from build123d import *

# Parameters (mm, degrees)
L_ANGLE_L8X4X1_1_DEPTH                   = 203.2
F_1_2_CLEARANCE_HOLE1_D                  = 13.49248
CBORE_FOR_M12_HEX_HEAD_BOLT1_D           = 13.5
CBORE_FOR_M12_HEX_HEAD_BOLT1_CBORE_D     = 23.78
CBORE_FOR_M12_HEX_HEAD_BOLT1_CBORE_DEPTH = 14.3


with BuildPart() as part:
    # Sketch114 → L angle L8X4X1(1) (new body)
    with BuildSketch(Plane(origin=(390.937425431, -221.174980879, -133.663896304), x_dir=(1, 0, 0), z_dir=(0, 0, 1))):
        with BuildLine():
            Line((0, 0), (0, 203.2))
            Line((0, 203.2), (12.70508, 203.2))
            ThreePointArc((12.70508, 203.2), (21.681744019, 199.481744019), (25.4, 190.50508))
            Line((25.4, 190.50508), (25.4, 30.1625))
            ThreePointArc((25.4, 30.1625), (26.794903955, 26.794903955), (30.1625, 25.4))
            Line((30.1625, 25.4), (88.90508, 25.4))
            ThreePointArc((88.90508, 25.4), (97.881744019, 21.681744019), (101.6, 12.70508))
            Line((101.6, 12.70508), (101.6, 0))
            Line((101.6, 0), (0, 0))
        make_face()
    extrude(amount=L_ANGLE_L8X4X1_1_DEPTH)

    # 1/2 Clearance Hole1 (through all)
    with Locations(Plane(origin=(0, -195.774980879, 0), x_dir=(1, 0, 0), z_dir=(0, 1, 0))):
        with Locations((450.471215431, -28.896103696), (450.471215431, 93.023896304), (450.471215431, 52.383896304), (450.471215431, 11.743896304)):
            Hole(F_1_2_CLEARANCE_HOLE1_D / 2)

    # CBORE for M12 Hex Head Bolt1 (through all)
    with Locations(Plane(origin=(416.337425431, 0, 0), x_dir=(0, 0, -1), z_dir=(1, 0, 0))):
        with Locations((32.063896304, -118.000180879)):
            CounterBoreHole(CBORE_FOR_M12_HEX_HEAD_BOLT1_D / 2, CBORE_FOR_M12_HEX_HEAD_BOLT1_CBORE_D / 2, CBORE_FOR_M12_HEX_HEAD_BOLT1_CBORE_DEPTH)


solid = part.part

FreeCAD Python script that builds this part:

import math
import FreeCAD as App
import Part
import Sketcher
from FreeCAD import Vector
Q = App.Units.Quantity

doc = App.newDocument("Part")
body = doc.addObject("PartDesign::Body", "Body")

sketch1 = body.newObject("Sketcher::SketchObject", "Sketch")
sketch1.AttachmentSupport = (doc.getObject("XY_Plane"), [""])
sketch1.MapMode = "FlatFace"
sketch1.AttachmentOffset = App.Placement(Vector(0, 0, -133.663896), App.Rotation())
sketch1.addGeometry(Part.LineSegment(Vector(390.937425, -17.974981, 0), Vector(390.937425, -221.174981, 0)), False)
sketch1.addGeometry(Part.LineSegment(Vector(390.937425, -221.174981, 0), Vector(492.537425, -221.174981, 0)), False)
sketch1.addGeometry(Part.LineSegment(Vector(492.537425, -221.174981, 0), Vector(492.537425, -208.469901, 0)), False)
sketch1.addGeometry(Part.ArcOfCircle(Part.Circle(Vector(479.842505, -208.469901, 0), Vector(0, 0, 1), 12.69492), math.radians(0), math.radians(90)), False)
sketch1.addGeometry(Part.LineSegment(Vector(479.842505, -195.774981, 0), Vector(421.099925, -195.774981, 0)), False)
sketch1.addGeometry(Part.ArcOfCircle(Part.Circle(Vector(421.099925, -191.012481, 0), Vector(0, 0, 1), 4.7625), math.radians(-180), math.radians(-90)), False)
sketch1.addGeometry(Part.LineSegment(Vector(416.337425, -191.012481, 0), Vector(416.337425, -30.669901, 0)), False)
sketch1.addGeometry(Part.ArcOfCircle(Part.Circle(Vector(403.642505, -30.669901, 0), Vector(0, 0, 1), 12.69492), math.radians(0), math.radians(90)), False)
sketch1.addGeometry(Part.LineSegment(Vector(403.642505, -17.974981, 0), Vector(390.937425, -17.974981, 0)), False)
sketch1.addConstraint(Sketcher.Constraint("Coincident", 0, 2, 1, 1))
sketch1.addConstraint(Sketcher.Constraint("Coincident", 1, 2, 2, 1))
sketch1.addConstraint(Sketcher.Constraint("Tangent", 2, 2, 3, 1))
sketch1.addConstraint(Sketcher.Constraint("Tangent", 3, 2, 4, 1))
sketch1.addConstraint(Sketcher.Constraint("Tangent", 4, 2, 5, 2))
sketch1.addConstraint(Sketcher.Constraint("Tangent", 5, 1, 6, 1))
sketch1.addConstraint(Sketcher.Constraint("Tangent", 6, 2, 7, 1))
sketch1.addConstraint(Sketcher.Constraint("Tangent", 7, 2, 8, 1))
sketch1.addConstraint(Sketcher.Constraint("Coincident", 8, 2, 0, 1))
sketch1.addConstraint(Sketcher.Constraint("Vertical", 0))
sketch1.addConstraint(Sketcher.Constraint("Horizontal", 1))
sketch1.addConstraint(Sketcher.Constraint("Vertical", 2))
sketch1.addConstraint(Sketcher.Constraint("Horizontal", 4))
sketch1.addConstraint(Sketcher.Constraint("Vertical", 6))
sketch1.addConstraint(Sketcher.Constraint("Horizontal", 8))
sketch1.addConstraint(Sketcher.Constraint("Equal", 3, 7))
sketch1.addConstraint(Sketcher.Constraint("Equal", 8, 2))
sketch1.addConstraint(Sketcher.Constraint("DistanceX", 1, 1, 1, 2, Q("4 in")))
sketch1.addConstraint(Sketcher.Constraint("DistanceY", 0, 2, 0, 1, Q("8 in")))
sketch1.addConstraint(Sketcher.Constraint("Radius", 5, Q("0.1875 in")))
sketch1.addConstraint(Sketcher.Constraint("DistanceX", 7, 3, 3, 3, Q("3 in")))
sketch1.addConstraint(Sketcher.Constraint("Radius", 3, Q("0.4998 in")))
sketch1.addConstraint(Sketcher.Constraint("DistanceY", 3, 3, -1, 1, Q("208.469901 mm")))
sketch1.addConstraint(Sketcher.Constraint("DistanceX", -1, 1, 3, 3, Q("479.842505 mm")))
pad1 = body.newObject("PartDesign::Pad", "Pad")
pad1.Profile = sketch1
pad1.Length = Q("8 in")

sketch2 = body.newObject("Sketcher::SketchObject", "Sketch001")
sketch2.AttachmentSupport = (doc.getObject("XZ_Plane"), [""])
sketch2.MapMode = "FlatFace"
sketch2.AttachmentOffset = App.Placement(Vector(0, 0, 195.774981), App.Rotation())
sketch2.addGeometry(Part.Circle(Vector(450.471215, 28.896104, 0), Vector(0, 0, 1), 6.74624), False)
sketch2.addGeometry(Part.Circle(Vector(450.471215, -93.023896, 0), Vector(0, 0, 1), 6.74624), False)
sketch2.addGeometry(Part.Circle(Vector(450.471215, -52.383896, 0), Vector(0, 0, 1), 6.74624), False)
sketch2.addGeometry(Part.Circle(Vector(450.471215, -11.743896, 0), Vector(0, 0, 1), 6.74624), False)
sketch2.addConstraint(Sketcher.Constraint("Equal", 0, 1))
sketch2.addConstraint(Sketcher.Constraint("Equal", 1, 2))
sketch2.addConstraint(Sketcher.Constraint("Equal", 2, 3))
sketch2.addConstraint(Sketcher.Constraint("Vertical", 0, 3, 1, 3))
sketch2.addConstraint(Sketcher.Constraint("Vertical", 1, 3, 2, 3))
sketch2.addConstraint(Sketcher.Constraint("Vertical", 2, 3, 3, 3))
sketch2.addConstraint(Sketcher.Constraint("Diameter", 0, Q("0.5312 in")))
sketch2.addConstraint(Sketcher.Constraint("DistanceY", 1, 3, 0, 3, Q("4.8 in")))
sketch2.addConstraint(Sketcher.Constraint("DistanceY", 1, 3, 2, 3, Q("1.6 in")))
sketch2.addConstraint(Sketcher.Constraint("DistanceY", 3, 3, 0, 3, Q("1.6 in")))
sketch2.addConstraint(Sketcher.Constraint("DistanceX", -1, 1, 0, 3, Q("450.471215 mm")))
sketch2.addConstraint(Sketcher.Constraint("DistanceY", -1, 1, 0, 3, Q("28.896104 mm")))
doc.recompute()
hole = body.newObject("PartDesign::Hole", "Hole")
hole.Profile = sketch2
hole.ThreadType = "None"
hole.Diameter = Q("0.5312 in")
hole.DepthType = "ThroughAll"
hole.Reversed = True

sketch3 = body.newObject("Sketcher::SketchObject", "Sketch002")
sketch3.AttachmentSupport = (doc.getObject("YZ_Plane"), [""])
sketch3.MapMode = "FlatFace"
sketch3.AttachmentOffset = App.Placement(Vector(0, 0, 416.337425), App.Rotation())
sketch3.addGeometry(Part.Circle(Vector(-118.000181, -32.063896, 0), Vector(0, 0, 1), 6.75), False)
sketch3.addConstraint(Sketcher.Constraint("Diameter", 0, Q("13.5 mm")))
sketch3.addConstraint(Sketcher.Constraint("DistanceX", 0, 3, -1, 1, Q("118.000181 mm")))
sketch3.addConstraint(Sketcher.Constraint("DistanceY", 0, 3, -1, 1, Q("32.063896 mm")))
doc.recompute()
hole2 = body.newObject("PartDesign::Hole", "Hole001")
hole2.Profile = sketch3
hole2.ThreadType = "None"
hole2.Diameter = 13.5
hole2.DepthType = "ThroughAll"
hole2.HoleCutType = "Counterbore"
hole2.HoleCutDiameter = 23.78
hole2.HoleCutDepth = 14.3

doc.recompute()
